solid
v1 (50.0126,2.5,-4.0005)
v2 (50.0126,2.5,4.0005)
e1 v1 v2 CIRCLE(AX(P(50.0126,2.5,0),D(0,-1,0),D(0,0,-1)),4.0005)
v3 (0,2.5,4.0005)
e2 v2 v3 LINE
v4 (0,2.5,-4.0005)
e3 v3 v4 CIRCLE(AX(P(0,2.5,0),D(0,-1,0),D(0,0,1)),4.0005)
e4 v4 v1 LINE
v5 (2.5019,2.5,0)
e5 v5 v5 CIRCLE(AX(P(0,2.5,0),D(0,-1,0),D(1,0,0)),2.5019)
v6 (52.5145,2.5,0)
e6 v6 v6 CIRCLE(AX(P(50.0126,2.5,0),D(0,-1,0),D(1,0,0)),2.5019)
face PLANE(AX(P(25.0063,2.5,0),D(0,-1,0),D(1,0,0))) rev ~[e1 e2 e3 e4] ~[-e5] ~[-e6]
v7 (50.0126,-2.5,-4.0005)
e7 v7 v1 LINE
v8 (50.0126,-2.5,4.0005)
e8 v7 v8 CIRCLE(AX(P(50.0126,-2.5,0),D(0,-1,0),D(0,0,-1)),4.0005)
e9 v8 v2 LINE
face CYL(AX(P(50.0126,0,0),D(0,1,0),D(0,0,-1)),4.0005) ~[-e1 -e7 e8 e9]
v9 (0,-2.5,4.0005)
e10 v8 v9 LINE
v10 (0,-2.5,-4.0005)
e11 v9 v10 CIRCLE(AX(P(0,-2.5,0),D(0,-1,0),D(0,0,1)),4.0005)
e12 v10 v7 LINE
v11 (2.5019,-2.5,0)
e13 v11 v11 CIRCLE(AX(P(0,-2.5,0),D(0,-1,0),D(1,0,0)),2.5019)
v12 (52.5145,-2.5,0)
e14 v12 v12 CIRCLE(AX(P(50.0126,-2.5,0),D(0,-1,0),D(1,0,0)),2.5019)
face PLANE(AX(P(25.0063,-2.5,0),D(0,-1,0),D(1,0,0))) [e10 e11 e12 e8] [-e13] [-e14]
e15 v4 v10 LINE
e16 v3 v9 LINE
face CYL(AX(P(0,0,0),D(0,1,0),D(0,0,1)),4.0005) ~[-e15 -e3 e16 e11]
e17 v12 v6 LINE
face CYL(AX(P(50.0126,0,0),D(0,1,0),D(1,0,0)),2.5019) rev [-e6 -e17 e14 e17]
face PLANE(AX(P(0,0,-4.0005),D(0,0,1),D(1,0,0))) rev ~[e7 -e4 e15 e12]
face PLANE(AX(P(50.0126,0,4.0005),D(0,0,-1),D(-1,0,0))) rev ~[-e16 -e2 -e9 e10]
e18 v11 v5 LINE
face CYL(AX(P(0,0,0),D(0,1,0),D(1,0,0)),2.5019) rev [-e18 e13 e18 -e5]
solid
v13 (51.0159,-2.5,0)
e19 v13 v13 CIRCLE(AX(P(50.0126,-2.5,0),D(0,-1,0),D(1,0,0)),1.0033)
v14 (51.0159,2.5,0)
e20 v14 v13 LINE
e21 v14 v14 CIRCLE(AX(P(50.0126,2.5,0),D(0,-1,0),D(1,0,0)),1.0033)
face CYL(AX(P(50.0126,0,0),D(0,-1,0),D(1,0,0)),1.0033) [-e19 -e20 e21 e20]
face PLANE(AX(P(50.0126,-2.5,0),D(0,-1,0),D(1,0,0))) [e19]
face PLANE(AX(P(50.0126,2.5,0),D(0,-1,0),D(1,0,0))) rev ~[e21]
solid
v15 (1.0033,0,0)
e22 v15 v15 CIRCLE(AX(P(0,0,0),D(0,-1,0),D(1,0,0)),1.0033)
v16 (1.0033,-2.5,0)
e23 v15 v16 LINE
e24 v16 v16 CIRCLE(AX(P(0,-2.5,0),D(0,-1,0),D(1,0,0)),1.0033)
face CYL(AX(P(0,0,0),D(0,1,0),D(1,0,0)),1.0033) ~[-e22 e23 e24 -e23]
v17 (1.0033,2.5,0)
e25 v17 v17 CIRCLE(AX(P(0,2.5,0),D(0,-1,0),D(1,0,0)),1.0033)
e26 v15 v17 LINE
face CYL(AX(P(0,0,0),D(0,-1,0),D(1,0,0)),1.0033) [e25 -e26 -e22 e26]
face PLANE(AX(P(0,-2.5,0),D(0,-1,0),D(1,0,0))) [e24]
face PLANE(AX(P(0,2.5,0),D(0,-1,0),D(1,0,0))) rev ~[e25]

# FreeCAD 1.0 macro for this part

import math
import FreeCAD as App
import Part
import Sketcher
Q = App.Units.Quantity

doc = App.newDocument("Part")
body = doc.addObject("PartDesign::Body", "Body")
body.AllowCompound = True

sketch1 = body.newObject("Sketcher::SketchObject", "Sketch")
sketch1.AttachmentSupport = (doc.getObject("XZ_Plane"), [""])
sketch1.MapMode = "FlatFace"
sketch1.addGeometry([
    Part.LineSegment(App.Vector(50, 4, 0), App.Vector(0, 4, 0)),
    Part.ArcOfCircle(Part.Circle(App.Vector(0, 0, 0), App.Vector(0, 0, 1), 4), math.radians(90), math.radians(270)),
    Part.LineSegment(App.Vector(0, -4, 0), App.Vector(50, -4, 0)),
    Part.ArcOfCircle(Part.Circle(App.Vector(50, 0, 0), App.Vector(0, 0, 1), 4), math.radians(-90), math.radians(90)),
    Part.Circle(App.Vector(0, 0, 0), App.Vector(0, 0, 1), 2.5),
    Part.Circle(App.Vector(50, 0, 0), App.Vector(0, 0, 1), 2.5),
    Part.Circle(App.Vector(0, 0, 0), App.Vector(0, 0, 1), 1),
    Part.Circle(App.Vector(50, 0, 0), App.Vector(0, 0, 1), 1),
], False)
sketch1.addConstraint([
    Sketcher.Constraint("Tangent", 0, 2, 1, 1),
    Sketcher.Constraint("Tangent", 1, 2, 2, 1),
    Sketcher.Constraint("Tangent", 2, 2, 3, 1),
    Sketcher.Constraint("Tangent", 3, 2, 0, 1),
    Sketcher.Constraint("Horizontal", 0),
    Sketcher.Constraint("Horizontal", 2),
    Sketcher.Constraint("Coincident", 1, 3, -1, 1),
    Sketcher.Constraint("Coincident", 4, 3, -1, 1),
    Sketcher.Constraint("Coincident", 6, 3, -1, 1),
    Sketcher.Constraint("Coincident", 5, 3, 3, 3),
    Sketcher.Constraint("Coincident", 7, 3, 3, 3),
    Sketcher.Constraint("Equal", 4, 5),
    Sketcher.Constraint("Equal", 6, 7),
    Sketcher.Constraint("Diameter", 4, Q("0.197 in")),
    Sketcher.Constraint("Diameter", 6, Q("0.079 in")),
    Sketcher.Constraint("Radius", 1, Q("0.1575 in")),
    Sketcher.Constraint("DistanceX", 0, 2, 0, 1, Q("1.969 in")),
])
pad1 = body.newObject("PartDesign::Pad", "Pad")
pad1.Profile = sketch1
pad1.Length = 5
pad1.Midplane = True

doc.recompute()
